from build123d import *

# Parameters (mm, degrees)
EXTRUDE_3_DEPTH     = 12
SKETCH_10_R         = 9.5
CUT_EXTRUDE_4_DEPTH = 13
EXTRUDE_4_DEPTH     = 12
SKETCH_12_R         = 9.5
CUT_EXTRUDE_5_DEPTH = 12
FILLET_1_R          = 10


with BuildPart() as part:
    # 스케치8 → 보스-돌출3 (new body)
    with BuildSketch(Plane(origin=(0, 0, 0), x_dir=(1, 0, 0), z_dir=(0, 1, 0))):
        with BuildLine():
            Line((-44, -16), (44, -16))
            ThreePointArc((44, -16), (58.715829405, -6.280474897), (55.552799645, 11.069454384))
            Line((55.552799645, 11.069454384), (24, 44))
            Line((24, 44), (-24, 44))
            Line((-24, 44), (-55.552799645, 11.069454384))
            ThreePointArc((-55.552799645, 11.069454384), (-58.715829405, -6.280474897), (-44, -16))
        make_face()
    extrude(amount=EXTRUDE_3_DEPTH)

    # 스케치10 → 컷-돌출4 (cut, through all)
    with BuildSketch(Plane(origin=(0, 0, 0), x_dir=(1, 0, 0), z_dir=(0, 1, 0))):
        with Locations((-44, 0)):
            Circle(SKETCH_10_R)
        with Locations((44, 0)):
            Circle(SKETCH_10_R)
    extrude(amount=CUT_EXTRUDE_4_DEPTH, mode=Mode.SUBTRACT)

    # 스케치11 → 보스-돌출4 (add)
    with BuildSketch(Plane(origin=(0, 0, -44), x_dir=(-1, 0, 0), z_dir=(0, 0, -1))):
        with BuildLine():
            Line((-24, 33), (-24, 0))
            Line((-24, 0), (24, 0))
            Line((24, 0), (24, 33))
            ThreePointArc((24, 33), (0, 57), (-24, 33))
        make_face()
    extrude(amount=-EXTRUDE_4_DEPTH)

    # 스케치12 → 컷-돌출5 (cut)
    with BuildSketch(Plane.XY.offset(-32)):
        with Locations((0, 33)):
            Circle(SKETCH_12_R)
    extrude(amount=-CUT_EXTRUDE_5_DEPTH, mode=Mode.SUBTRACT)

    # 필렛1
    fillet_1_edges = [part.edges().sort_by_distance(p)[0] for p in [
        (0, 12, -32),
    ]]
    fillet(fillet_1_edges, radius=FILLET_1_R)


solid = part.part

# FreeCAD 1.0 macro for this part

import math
import FreeCAD as App
import Part
import Sketcher

V = App.Vector


def edges_at(feature, points):
    """Names of the edges that pass closest to the given points."""
    edges = feature.Shape.Edges
    near = lambda p: min(range(len(edges)), key=lambda i: edges[i].distToShape(Part.Vertex(*p))[0])
    return sorted({f"Edge{near(p) + 1}" for p in points})

doc = App.newDocument("Part")
body = doc.addObject("PartDesign::Body", "Body")

sketch1 = body.newObject("Sketcher::SketchObject", "Sketch")
sketch1.AttachmentSupport = (doc.getObject("XZ_Plane"), [""])
sketch1.MapMode = "FlatFace"
sketch1.addGeometry([
    Part.LineSegment(V(-44, 16, 0), V(44, 16, 0)),
    Part.ArcOfCircle(Part.Circle(V(44, 0, 0), V(0, 0, 1), 16), math.radians(-44), math.radians(90)),
    Part.LineSegment(V(56, -11, 0), V(24, -44, 0)),
    Part.LineSegment(V(24, -44, 0), V(-24, -44, 0)),
    Part.LineSegment(V(-24, -44, 0), V(-56, -11, 0)),
    Part.ArcOfCircle(Part.Circle(V(-44, 0, 0), V(0, 0, 1), 16), math.radians(90), math.radians(224)),
], False)
sketch1.addConstraint([
    Sketcher.Constraint("Tangent", 0, 2, 1, 2),
    Sketcher.Constraint("Tangent", 1, 1, 2, 1),
    Sketcher.Constraint("Coincident", 2, 2, 3, 1),
    Sketcher.Constraint("Coincident", 3, 2, 4, 1),
    Sketcher.Constraint("Tangent", 4, 2, 5, 2),
    Sketcher.Constraint("Tangent", 5, 1, 0, 1),
    Sketcher.Constraint("Horizontal", 0),
    Sketcher.Constraint("Horizontal", 3),
    Sketcher.Constraint("Equal", 1, 5),
    Sketcher.Constraint("Symmetric", 1, 3, 5, 3, -1, 1),
    Sketcher.Constraint("Horizontal", 1, 1, 4, 2),
    Sketcher.Constraint("Radius", 1, 16.0),
    Sketcher.Constraint("DistanceX", 0, 1, 0, 2, 88.0),
    Sketcher.Constraint("DistanceX", 3, 2, 3, 1, 48.0),
    Sketcher.Constraint("DistanceY", 2, 2, -1, 1, 44.0),
])
pad1 = body.newObject("PartDesign::Pad", "Pad")
pad1.Profile = sketch1
pad1.Length = 12
pad1.Reversed = True

sketch2 = body.newObject("Sketcher::SketchObject", "Sketch001")
sketch2.AttachmentSupport = (doc.getObject("XZ_Plane"), [""])
sketch2.MapMode = "FlatFace"
sketch2.addGeometry([
    Part.Circle(V(-44, 0, 0), V(0, 0, 1), 10),
    Part.Circle(V(44, 0, 0), V(0, 0, 1), 10),
], False)
sketch2.addConstraint([
    Sketcher.Constraint("Equal", 0, 1),
    Sketcher.Constraint("Symmetric", 0, 3, 1, 3, -1, 1),
    Sketcher.Constraint("PointOnObject", 0, 3, -1),
    Sketcher.Constraint("Diameter", 0, 19.0),
    Sketcher.Constraint("DistanceX", 0, 3, -1, 1, 44.0),
])
pocket1 = body.newObject("PartDesign::Pocket", "Pocket")
pocket1.Profile = sketch2
pocket1.Type = "ThroughAll"

sketch3 = body.newObject("Sketcher::SketchObject", "Sketch002")
sketch3.AttachmentSupport = (doc.getObject("XY_Plane"), [""])
sketch3.MapMode = "FlatFace"
sketch3.AttachmentOffset = App.Placement(V(0, 0, -44), App.Rotation())
sketch3.addGeometry([
    Part.LineSegment(V(24, 33, 0), V(24, 0, 0)),
    Part.LineSegment(V(24, 0, 0), V(-24, 0, 0)),
    Part.LineSegment(V(-24, 0, 0), V(-24, 33, 0)),
    Part.ArcOfCircle(Part.Circle(V(0, 33, 0), V(0, 0, 1), 24), math.radians(0), math.radians(180)),
], False)
sketch3.addConstraint([
    Sketcher.Constraint("Coincident", 0, 2, 1, 1),
    Sketcher.Constraint("Coincident", 1, 2, 2, 1),
    Sketcher.Constraint("Tangent", 2, 2, 3, 2),
    Sketcher.Constraint("Tangent", 3, 1, 0, 1),
    Sketcher.Constraint("Vertical", 0),
    Sketcher.Constraint("Horizontal", 1),
    Sketcher.Constraint("Vertical", 2),
    Sketcher.Constraint("Symmetric", 0, 2, 1, 2, -1, 1),
    Sketcher.Constraint("Radius", 3, 24.0),
    Sketcher.Constraint("DistanceY", 0, 2, 0, 1, 33.0),
])
pad2 = body.newObject("PartDesign::Pad", "Pad001")
pad2.Profile = sketch3
pad2.Length = 12

sketch4 = body.newObject("Sketcher::SketchObject", "Sketch003")
sketch4.AttachmentSupport = (doc.getObject("XY_Plane"), [""])
sketch4.MapMode = "FlatFace"
sketch4.AttachmentOffset = App.Placement(V(0, 0, -32), App.Rotation())
sketch4.addGeometry(Part.Circle(V(0, 33, 0), V(0, 0, 1), 10), False)
sketch4.addConstraint([
    Sketcher.Constraint("PointOnObject", 0, 3, -2),
    Sketcher.Constraint("Diameter", 0, 19.0),
    Sketcher.Constraint("DistanceY", -1, 1, 0, 3, 33.0),
])
pocket2 = body.newObject("PartDesign::Pocket", "Pocket001")
pocket2.Profile = sketch4
pocket2.Length = 12
doc.recompute()

fillet = body.newObject("PartDesign::Fillet", "Fillet")
fillet.Base = (pocket2, edges_at(pocket2, [(0, 12, -32)]))
fillet.Radius = 10

doc.recompute()
